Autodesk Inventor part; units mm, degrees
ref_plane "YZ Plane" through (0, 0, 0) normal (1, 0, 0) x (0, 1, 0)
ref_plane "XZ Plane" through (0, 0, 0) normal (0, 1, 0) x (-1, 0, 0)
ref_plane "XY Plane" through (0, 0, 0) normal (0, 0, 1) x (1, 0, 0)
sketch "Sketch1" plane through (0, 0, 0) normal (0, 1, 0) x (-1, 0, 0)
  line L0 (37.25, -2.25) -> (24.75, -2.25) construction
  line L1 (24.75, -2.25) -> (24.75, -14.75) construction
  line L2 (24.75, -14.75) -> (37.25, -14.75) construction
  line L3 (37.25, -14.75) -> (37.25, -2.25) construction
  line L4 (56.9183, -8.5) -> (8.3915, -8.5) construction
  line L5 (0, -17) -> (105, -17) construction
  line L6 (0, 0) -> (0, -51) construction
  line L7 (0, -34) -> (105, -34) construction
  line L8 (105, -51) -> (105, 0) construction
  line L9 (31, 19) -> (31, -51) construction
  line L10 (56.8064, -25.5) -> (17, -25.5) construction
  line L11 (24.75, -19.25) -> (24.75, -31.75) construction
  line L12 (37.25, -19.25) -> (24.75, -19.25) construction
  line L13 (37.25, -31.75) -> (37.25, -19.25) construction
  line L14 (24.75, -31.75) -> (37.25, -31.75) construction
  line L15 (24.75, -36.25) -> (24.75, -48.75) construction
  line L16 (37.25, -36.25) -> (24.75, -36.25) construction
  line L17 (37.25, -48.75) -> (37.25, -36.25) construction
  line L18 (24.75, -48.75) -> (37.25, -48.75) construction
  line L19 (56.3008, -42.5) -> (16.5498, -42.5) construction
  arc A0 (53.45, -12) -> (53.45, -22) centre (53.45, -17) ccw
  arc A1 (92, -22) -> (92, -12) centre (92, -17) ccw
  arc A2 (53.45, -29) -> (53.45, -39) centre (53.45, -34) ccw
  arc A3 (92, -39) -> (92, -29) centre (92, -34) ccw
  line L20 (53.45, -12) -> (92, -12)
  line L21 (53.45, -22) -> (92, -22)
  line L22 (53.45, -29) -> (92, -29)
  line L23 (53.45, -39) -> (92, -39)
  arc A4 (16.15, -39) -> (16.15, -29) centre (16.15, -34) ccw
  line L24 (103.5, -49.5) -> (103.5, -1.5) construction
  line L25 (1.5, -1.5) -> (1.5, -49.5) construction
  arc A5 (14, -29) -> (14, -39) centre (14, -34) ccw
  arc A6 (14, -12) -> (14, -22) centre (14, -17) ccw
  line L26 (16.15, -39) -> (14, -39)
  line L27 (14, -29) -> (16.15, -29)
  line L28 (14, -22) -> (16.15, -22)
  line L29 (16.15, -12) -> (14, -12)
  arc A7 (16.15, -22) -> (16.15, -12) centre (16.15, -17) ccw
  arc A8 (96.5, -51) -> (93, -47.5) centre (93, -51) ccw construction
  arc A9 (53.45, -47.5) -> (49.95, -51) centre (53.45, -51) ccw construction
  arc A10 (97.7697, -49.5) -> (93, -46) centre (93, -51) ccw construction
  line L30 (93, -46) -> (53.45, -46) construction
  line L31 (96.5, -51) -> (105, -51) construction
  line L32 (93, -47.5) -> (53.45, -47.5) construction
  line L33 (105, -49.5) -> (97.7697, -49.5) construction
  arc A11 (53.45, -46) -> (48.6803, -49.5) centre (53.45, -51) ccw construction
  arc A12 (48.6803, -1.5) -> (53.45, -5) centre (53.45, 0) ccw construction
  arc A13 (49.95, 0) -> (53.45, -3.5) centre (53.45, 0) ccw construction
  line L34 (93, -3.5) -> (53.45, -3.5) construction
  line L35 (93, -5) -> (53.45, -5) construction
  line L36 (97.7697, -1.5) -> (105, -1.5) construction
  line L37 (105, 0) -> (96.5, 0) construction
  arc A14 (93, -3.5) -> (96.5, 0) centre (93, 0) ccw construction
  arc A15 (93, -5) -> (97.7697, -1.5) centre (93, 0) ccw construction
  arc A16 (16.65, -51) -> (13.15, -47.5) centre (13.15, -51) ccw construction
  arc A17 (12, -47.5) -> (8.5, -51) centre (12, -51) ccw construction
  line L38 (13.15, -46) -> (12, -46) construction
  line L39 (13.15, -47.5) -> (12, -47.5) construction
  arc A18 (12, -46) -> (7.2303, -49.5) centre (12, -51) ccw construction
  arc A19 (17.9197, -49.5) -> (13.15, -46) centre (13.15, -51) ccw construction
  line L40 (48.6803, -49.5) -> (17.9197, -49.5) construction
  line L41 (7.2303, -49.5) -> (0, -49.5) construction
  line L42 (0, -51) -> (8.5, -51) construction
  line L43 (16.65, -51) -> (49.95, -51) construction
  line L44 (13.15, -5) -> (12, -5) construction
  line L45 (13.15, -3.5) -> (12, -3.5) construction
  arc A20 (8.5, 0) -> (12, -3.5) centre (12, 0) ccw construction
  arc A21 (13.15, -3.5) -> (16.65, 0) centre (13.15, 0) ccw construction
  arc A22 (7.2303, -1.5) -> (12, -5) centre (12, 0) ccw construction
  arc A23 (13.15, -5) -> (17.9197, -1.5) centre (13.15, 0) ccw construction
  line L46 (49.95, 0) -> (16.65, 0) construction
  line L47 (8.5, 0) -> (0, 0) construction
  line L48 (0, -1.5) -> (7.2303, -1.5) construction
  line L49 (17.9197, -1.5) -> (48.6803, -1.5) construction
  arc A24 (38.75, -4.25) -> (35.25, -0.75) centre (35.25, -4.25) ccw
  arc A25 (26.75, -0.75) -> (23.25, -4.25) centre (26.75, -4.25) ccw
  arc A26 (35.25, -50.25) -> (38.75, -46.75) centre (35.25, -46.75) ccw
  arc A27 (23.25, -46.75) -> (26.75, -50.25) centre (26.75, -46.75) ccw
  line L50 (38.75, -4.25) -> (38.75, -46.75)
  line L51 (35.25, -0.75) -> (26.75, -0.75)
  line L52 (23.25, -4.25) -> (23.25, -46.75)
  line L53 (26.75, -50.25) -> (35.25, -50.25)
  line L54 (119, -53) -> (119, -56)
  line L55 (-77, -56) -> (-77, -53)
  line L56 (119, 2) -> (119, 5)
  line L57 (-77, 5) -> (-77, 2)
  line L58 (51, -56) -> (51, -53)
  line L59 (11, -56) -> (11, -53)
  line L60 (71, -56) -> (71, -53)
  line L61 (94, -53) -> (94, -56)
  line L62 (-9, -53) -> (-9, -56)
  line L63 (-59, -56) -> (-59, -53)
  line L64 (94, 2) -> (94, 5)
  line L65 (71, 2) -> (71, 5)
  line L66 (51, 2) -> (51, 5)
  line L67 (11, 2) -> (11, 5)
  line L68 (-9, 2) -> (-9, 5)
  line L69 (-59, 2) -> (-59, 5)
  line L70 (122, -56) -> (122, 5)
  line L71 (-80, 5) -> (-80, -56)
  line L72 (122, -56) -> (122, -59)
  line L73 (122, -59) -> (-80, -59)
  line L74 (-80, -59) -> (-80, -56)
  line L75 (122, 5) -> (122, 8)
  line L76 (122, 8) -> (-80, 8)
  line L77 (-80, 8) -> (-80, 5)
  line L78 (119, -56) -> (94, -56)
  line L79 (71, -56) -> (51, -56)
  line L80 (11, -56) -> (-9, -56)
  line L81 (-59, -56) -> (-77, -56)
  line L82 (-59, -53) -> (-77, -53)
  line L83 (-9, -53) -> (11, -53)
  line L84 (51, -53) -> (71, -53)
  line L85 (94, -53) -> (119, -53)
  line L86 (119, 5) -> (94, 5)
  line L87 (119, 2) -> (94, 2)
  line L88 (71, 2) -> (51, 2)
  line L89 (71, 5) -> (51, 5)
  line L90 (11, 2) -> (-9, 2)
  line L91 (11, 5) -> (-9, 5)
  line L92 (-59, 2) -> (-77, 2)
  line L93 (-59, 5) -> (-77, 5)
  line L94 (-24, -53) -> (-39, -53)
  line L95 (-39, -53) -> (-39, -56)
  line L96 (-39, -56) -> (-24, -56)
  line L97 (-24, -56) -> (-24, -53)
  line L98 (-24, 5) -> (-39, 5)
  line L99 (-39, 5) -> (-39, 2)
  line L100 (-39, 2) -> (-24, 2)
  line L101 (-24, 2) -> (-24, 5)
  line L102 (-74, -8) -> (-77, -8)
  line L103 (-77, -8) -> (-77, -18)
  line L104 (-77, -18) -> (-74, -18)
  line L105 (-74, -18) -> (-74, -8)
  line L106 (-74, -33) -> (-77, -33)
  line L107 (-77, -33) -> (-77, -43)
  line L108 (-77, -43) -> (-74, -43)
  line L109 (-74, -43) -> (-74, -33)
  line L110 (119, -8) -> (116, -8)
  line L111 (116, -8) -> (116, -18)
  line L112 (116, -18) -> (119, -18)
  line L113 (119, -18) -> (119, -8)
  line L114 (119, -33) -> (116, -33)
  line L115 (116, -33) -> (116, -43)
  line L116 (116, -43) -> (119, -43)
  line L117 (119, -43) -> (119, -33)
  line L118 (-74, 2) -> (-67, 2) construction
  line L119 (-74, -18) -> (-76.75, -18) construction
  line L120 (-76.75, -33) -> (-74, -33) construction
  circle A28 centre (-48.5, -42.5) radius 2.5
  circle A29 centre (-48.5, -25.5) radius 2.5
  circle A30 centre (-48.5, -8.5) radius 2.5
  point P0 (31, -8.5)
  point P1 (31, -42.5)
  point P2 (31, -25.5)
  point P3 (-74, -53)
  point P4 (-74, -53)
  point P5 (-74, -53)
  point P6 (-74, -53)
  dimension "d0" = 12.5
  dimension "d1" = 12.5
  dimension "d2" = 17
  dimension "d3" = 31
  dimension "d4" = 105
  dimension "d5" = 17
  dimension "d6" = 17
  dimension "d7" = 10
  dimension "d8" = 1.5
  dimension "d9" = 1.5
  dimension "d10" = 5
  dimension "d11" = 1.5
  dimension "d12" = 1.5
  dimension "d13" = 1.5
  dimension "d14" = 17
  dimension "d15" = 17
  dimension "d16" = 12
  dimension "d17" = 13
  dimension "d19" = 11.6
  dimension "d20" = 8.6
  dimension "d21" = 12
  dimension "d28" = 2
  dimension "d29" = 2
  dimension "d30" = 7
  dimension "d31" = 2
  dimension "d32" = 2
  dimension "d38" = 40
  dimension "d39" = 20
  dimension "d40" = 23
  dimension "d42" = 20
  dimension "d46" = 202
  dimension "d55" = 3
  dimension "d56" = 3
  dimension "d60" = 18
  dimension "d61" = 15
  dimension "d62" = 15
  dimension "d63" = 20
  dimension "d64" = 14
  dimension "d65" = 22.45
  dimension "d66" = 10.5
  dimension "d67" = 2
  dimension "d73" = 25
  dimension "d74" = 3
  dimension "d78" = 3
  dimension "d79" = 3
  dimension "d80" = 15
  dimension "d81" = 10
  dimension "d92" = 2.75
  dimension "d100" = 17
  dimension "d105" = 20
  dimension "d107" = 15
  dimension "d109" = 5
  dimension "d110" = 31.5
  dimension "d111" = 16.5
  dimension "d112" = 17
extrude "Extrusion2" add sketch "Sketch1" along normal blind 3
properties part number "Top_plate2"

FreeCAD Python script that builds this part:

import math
import FreeCAD as App
import Part
import Sketcher


def add_polygon(sketch, points):
    """Adds a closed chain of lines whose ends are joined by coincident constraints."""
    first, n = sketch.GeometryCount, len(points)
    for a, b in zip(points, points[1:] + points[:1]):
        sketch.addGeometry(Part.LineSegment(App.Vector(*a, 0), App.Vector(*b, 0)), False)
    for i in range(n):
        sketch.addConstraint(Sketcher.Constraint("Coincident", first + i, 2, first + (i + 1) % n, 1))

doc = App.newDocument("Part")
body = doc.addObject("PartDesign::Body", "Body")

sketch1 = doc.addObject("Sketcher::SketchObject", "Sketch")
body.addObject(sketch1)
sketch1.AttachmentSupport = (doc.XZ_Plane, [""])
sketch1.MapMode = "FlatFace"
add_polygon(sketch1, [(-122, -59), (-122, 8), (80, 8), (80, -59)])
add_polygon(sketch1, [(59, -56), (77, -56), (77, -53), (59, -53)])
add_polygon(sketch1, [(39, -53), (24, -53), (24, -56), (39, -56)])
sketch1.addGeometry(Part.Circle(App.Vector(48.5, -42.5, 0), App.Vector(0, 0, 1), 2.5), False)
add_polygon(sketch1, [(-11, -53), (-11, -56), (9, -56), (9, -53)])
add_polygon(sketch1, [(77, -33), (74, -33), (74, -43), (77, -43)])
sketch1.addGeometry(Part.ArcOfCircle(Part.Circle(App.Vector(-16.1, -34, 0), App.Vector(0, 0, 1), 5), math.radians(90), math.radians(270)), False)
sketch1.addGeometry(Part.LineSegment(App.Vector(-16.1, -39, 0), App.Vector(-14, -39, 0)), False)
sketch1.addGeometry(Part.ArcOfCircle(Part.Circle(App.Vector(-14, -34, 0), App.Vector(0, 0, 1), 5), math.radians(-90), math.radians(90)), False)
sketch1.addGeometry(Part.LineSegment(App.Vector(-14, -29, 0), App.Vector(-16.1, -29, 0)), False)
add_polygon(sketch1, [(-71, -56), (-51, -56), (-51, -53), (-71, -53)])
add_polygon(sketch1, [(-94, -53), (-119, -53), (-119, -56), (-94, -56)])
sketch1.addGeometry(Part.ArcOfCircle(Part.Circle(App.Vector(-53.5, -34, 0), App.Vector(0, 0, 1), 5), math.radians(-90), math.radians(90)), False)
sketch1.addGeometry(Part.LineSegment(App.Vector(-53.5, -29, 0), App.Vector(-92, -29, 0)), False)
sketch1.addGeometry(Part.ArcOfCircle(Part.Circle(App.Vector(-92, -34, 0), App.Vector(0, 0, 1), 5), math.radians(90), math.radians(270)), False)
sketch1.addGeometry(Part.LineSegment(App.Vector(-92, -39, 0), App.Vector(-53.5, -39, 0)), False)
add_polygon(sketch1, [(-116, -33), (-119, -33), (-119, -43), (-116, -43)])
sketch1.addGeometry(Part.Circle(App.Vector(48.5, -25.5, 0), App.Vector(0, 0, 1), 2.5), False)
add_polygon(sketch1, [(77, -8), (74, -8), (74, -18), (77, -18)])
sketch1.addGeometry(Part.ArcOfCircle(Part.Circle(App.Vector(-14, -17, 0), App.Vector(0, 0, 1), 5), math.radians(-90), math.radians(90)), False)
sketch1.addGeometry(Part.LineSegment(App.Vector(-14, -12, 0), App.Vector(-16.1, -12, 0)), False)
sketch1.addGeometry(Part.ArcOfCircle(Part.Circle(App.Vector(-16.1, -17, 0), App.Vector(0, 0, 1), 5), math.radians(90), math.radians(270)), False)
sketch1.addGeometry(Part.LineSegment(App.Vector(-16.1, -22, 0), App.Vector(-14, -22, 0)), False)
sketch1.addGeometry(Part.Circle(App.Vector(48.5, -8.5, 0), App.Vector(0, 0, 1), 2.5), False)
add_polygon(sketch1, [(77, 2), (77, 5), (59, 5), (59, 2)])
add_polygon(sketch1, [(39, 5), (24, 5), (24, 2), (39, 2)])
add_polygon(sketch1, [(-11, 5), (-11, 2), (9, 2), (9, 5)])
sketch1.addGeometry(Part.ArcOfCircle(Part.Circle(App.Vector(-35.2, -4.2, 0), App.Vector(0, 0, 1), 3.5), math.radians(90), math.radians(180)), False)
sketch1.addGeometry(Part.LineSegment(App.Vector(-38.8, -4.2, 0), App.Vector(-38.8, -46.8, 0)), False)
sketch1.addGeometry(Part.ArcOfCircle(Part.Circle(App.Vector(-35.2, -46.8, 0), App.Vector(0, 0, 1), 3.5), math.radians(180), math.radians(270)), False)
sketch1.addGeometry(Part.LineSegment(App.Vector(-35.2, -50.2, 0), App.Vector(-26.8, -50.2, 0)), False)
sketch1.addGeometry(Part.ArcOfCircle(Part.Circle(App.Vector(-26.8, -46.8, 0), App.Vector(0, 0, 1), 3.5), math.radians(-90), math.radians(0)), False)
sketch1.addGeometry(Part.LineSegment(App.Vector(-23.2, -46.8, 0), App.Vector(-23.2, -4.2, 0)), False)
sketch1.addGeometry(Part.ArcOfCircle(Part.Circle(App.Vector(-26.8, -4.2, 0), App.Vector(0, 0, 1), 3.5), math.radians(0), math.radians(90)), False)
sketch1.addGeometry(Part.LineSegment(App.Vector(-26.8, -0.8, 0), App.Vector(-35.2, -0.8, 0)), False)
sketch1.addGeometry(Part.ArcOfCircle(Part.Circle(App.Vector(-53.5, -17, 0), App.Vector(0, 0, 1), 5), math.radians(-90), math.radians(90)), False)
sketch1.addGeometry(Part.LineSegment(App.Vector(-53.5, -12, 0), App.Vector(-92, -12, 0)), False)
sketch1.addGeometry(Part.ArcOfCircle(Part.Circle(App.Vector(-92, -17, 0), App.Vector(0, 0, 1), 5), math.radians(90), math.radians(270)), False)
sketch1.addGeometry(Part.LineSegment(App.Vector(-92, -22, 0), App.Vector(-53.5, -22, 0)), False)
add_polygon(sketch1, [(-116, -8), (-119, -8), (-119, -18), (-116, -18)])
add_polygon(sketch1, [(-71, 5), (-71, 2), (-51, 2), (-51, 5)])
add_polygon(sketch1, [(-119, 5), (-119, 2), (-94, 2), (-94, 5)])
sketch1.addConstraint([
    Sketcher.Constraint("Tangent", 21, 2, 22, 1),
    Sketcher.Constraint("Tangent", 22, 2, 23, 1),
    Sketcher.Constraint("Tangent", 23, 2, 24, 1),
    Sketcher.Constraint("Tangent", 24, 2, 21, 1),
    Sketcher.Constraint("Tangent", 33, 2, 34, 1),
    Sketcher.Constraint("Tangent", 34, 2, 35, 1),
    Sketcher.Constraint("Tangent", 35, 2, 36, 1),
    Sketcher.Constraint("Tangent", 36, 2, 33, 1),
    Sketcher.Constraint("Tangent", 46, 2, 47, 1),
    Sketcher.Constraint("Tangent", 47, 2, 48, 1),
    Sketcher.Constraint("Tangent", 48, 2, 49, 1),
    Sketcher.Constraint("Tangent", 49, 2, 46, 1),
    Sketcher.Constraint("Tangent", 63, 2, 64, 1),
    Sketcher.Constraint("Tangent", 64, 2, 65, 1),
    Sketcher.Constraint("Tangent", 65, 2, 66, 1),
    Sketcher.Constraint("Tangent", 66, 2, 67, 1),
    Sketcher.Constraint("Tangent", 67, 2, 68, 1),
    Sketcher.Constraint("Tangent", 68, 2, 69, 1),
    Sketcher.Constraint("Tangent", 69, 2, 70, 1),
    Sketcher.Constraint("Tangent", 70, 2, 63, 1),
    Sketcher.Constraint("Tangent", 71, 2, 72, 1),
    Sketcher.Constraint("Tangent", 72, 2, 73, 1),
    Sketcher.Constraint("Tangent", 73, 2, 74, 1),
    Sketcher.Constraint("Tangent", 74, 2, 71, 1),
    Sketcher.Constraint("Vertical", 0),
    Sketcher.Constraint("Horizontal", 1),
    Sketcher.Constraint("Vertical", 2),
    Sketcher.Constraint("Horizontal", 3),
    Sketcher.Constraint("Horizontal", 4),
    Sketcher.Constraint("Vertical", 5),
    Sketcher.Constraint("Horizontal", 6),
    Sketcher.Constraint("Vertical", 7),
    Sketcher.Constraint("Horizontal", 8),
    Sketcher.Constraint("Vertical", 9),
    Sketcher.Constraint("Horizontal", 10),
    Sketcher.Constraint("Vertical", 11),
    Sketcher.Constraint("Vertical", 13),
    Sketcher.Constraint("Horizontal", 14),
    Sketcher.Constraint("Vertical", 15),
    Sketcher.Constraint("Horizontal", 16),
    Sketcher.Constraint("Horizontal", 17),
    Sketcher.Constraint("Vertical", 18),
    Sketcher.Constraint("Horizontal", 19),
    Sketcher.Constraint("Vertical", 20),
    Sketcher.Constraint("Horizontal", 22),
    Sketcher.Constraint("Horizontal", 24),
    Sketcher.Constraint("Horizontal", 25),
    Sketcher.Constraint("Vertical", 26),
    Sketcher.Constraint("Horizontal", 27),
    Sketcher.Constraint("Vertical", 28),
    Sketcher.Constraint("Horizontal", 29),
    Sketcher.Constraint("Vertical", 30),
    Sketcher.Constraint("Horizontal", 31),
    Sketcher.Constraint("Vertical", 32),
    Sketcher.Constraint("Horizontal", 34),
    Sketcher.Constraint("Horizontal", 36),
    Sketcher.Constraint("Horizontal", 37),
    Sketcher.Constraint("Vertical", 38),
    Sketcher.Constraint("Horizontal", 39),
    Sketcher.Constraint("Vertical", 40),
    Sketcher.Constraint("Horizontal", 42),
    Sketcher.Constraint("Vertical", 43),
    Sketcher.Constraint("Horizontal", 44),
    Sketcher.Constraint("Vertical", 45),
    Sketcher.Constraint("Horizontal", 47),
    Sketcher.Constraint("Horizontal", 49),
    Sketcher.Constraint("Vertical", 51),
    Sketcher.Constraint("Horizontal", 52),
    Sketcher.Constraint("Vertical", 53),
    Sketcher.Constraint("Horizontal", 54),
    Sketcher.Constraint("Horizontal", 55),
    Sketcher.Constraint("Vertical", 56),
    Sketcher.Constraint("Horizontal", 57),
    Sketcher.Constraint("Vertical", 58),
    Sketcher.Constraint("Vertical", 59),
    Sketcher.Constraint("Horizontal", 60),
    Sketcher.Constraint("Vertical", 61),
    Sketcher.Constraint("Horizontal", 62),
    Sketcher.Constraint("Vertical", 64),
    Sketcher.Constraint("Horizontal", 66),
    Sketcher.Constraint("Vertical", 68),
    Sketcher.Constraint("Horizontal", 70),
    Sketcher.Constraint("Horizontal", 72),
    Sketcher.Constraint("Horizontal", 74),
    Sketcher.Constraint("Horizontal", 75),
    Sketcher.Constraint("Vertical", 76),
    Sketcher.Constraint("Horizontal", 77),
    Sketcher.Constraint("Vertical", 78),
    Sketcher.Constraint("Vertical", 79),
    Sketcher.Constraint("Horizontal", 80),
    Sketcher.Constraint("Vertical", 81),
    Sketcher.Constraint("Horizontal", 82),
    Sketcher.Constraint("Vertical", 83),
    Sketcher.Constraint("Horizontal", 84),
    Sketcher.Constraint("Vertical", 85),
    Sketcher.Constraint("Horizontal", 86),
    Sketcher.Constraint("Equal", 23, 33),
    Sketcher.Constraint("Equal", 12, 41),
    Sketcher.Constraint("Equal", 35, 46),
    Sketcher.Constraint("Equal", 41, 50),
    Sketcher.Constraint("Equal", 63, 65),
    Sketcher.Constraint("Equal", 65, 67),
    Sketcher.Constraint("Equal", 67, 69),
    Sketcher.Constraint("Equal", 48, 71),
    Sketcher.Constraint("Horizontal", 23, 3, 33, 3),
    Sketcher.Constraint("Horizontal", 48, 3, 71, 3),
    Sketcher.Constraint("Horizontal", 6, 2, 8, 2),
    Sketcher.Constraint("Horizontal", 7, 2, 9, 2),
    Sketcher.Constraint("Horizontal", 10, 2, 13, 2),
    Sketcher.Constraint("Horizontal", 11, 2, 15, 2),
    Sketcher.Constraint("Horizontal", 14, 2, 25, 2),
    Sketcher.Constraint("Horizontal", 16, 2, 26, 2),
    Sketcher.Constraint("Horizontal", 27, 2, 29, 2),
    Sketcher.Constraint("Horizontal", 28, 2, 30, 2),
    Sketcher.Constraint("Horizontal", 20, 2, 37, 2),
    Sketcher.Constraint("Horizontal", 19, 2, 38, 2),
    Sketcher.Constraint("Horizontal", 52, 2, 55, 2),
    Sketcher.Constraint("Horizontal", 54, 2, 56, 2),
    Sketcher.Constraint("Horizontal", 57, 2, 59, 2),
    Sketcher.Constraint("Horizontal", 58, 2, 61, 2),
    Sketcher.Constraint("Horizontal", 45, 2, 75, 2),
    Sketcher.Constraint("Horizontal", 44, 2, 76, 2),
    Sketcher.Constraint("Horizontal", 60, 2, 79, 2),
    Sketcher.Constraint("Horizontal", 62, 2, 81, 2),
    Sketcher.Constraint("Horizontal", 80, 2, 83, 2),
    Sketcher.Constraint("Horizontal", 82, 2, 85, 2),
    Sketcher.Constraint("Vertical", 12, 3, 41, 3),
    Sketcher.Constraint("Vertical", 23, 3, 46, 3),
    Sketcher.Constraint("Vertical", 21, 3, 48, 3),
    Sketcher.Constraint("Vertical", 41, 3, 50, 3),
    Sketcher.Constraint("Vertical", 33, 3, 71, 3),
    Sketcher.Constraint("Vertical", 35, 3, 73, 3),
    Sketcher.Constraint("Vertical", 5, 2, 19, 2),
    Sketcher.Constraint("Vertical", 30, 2, 37, 2),
    Sketcher.Constraint("Vertical", 18, 2, 42, 2),
    Sketcher.Constraint("Vertical", 20, 2, 44, 2),
    Sketcher.Constraint("Vertical", 45, 2, 51, 2),
    Sketcher.Constraint("Vertical", 7, 2, 52, 2),
    Sketcher.Constraint("Vertical", 9, 2, 55, 2),
    Sketcher.Constraint("Vertical", 11, 2, 57, 2),
    Sketcher.Constraint("Vertical", 16, 2, 59, 2),
    Sketcher.Constraint("Vertical", 15, 2, 60, 2),
    Sketcher.Constraint("Vertical", 38, 2, 75, 2),
    Sketcher.Constraint("Vertical", 40, 2, 77, 2),
    Sketcher.Constraint("Vertical", 28, 2, 79, 2),
    Sketcher.Constraint("Vertical", 26, 2, 80, 2),
    Sketcher.Constraint("Vertical", 76, 2, 83, 2),
    Sketcher.Constraint("Vertical", 32, 2, 84, 2),
    Sketcher.Constraint("Equal", 16, 25),
    Sketcher.Constraint("Equal", 19, 37),
    Sketcher.Constraint("Equal", 77, 5),
    Sketcher.Constraint("Equal", 40, 43),
    Sketcher.Constraint("Equal", 32, 51),
    Sketcher.Constraint("Diameter", 12, 5.0),
    Sketcher.Constraint("Radius", 21, 5.0),
    Sketcher.Constraint("Radius", 63, 3.5),
    Sketcher.Constraint("DistanceX", 1, 1, 1, 2, 202.0),
    Sketcher.Constraint("DistanceX", 4, 1, 4, 2, 18.0),
    Sketcher.Constraint("DistanceX", 8, 2, 8, 1, 15.0),
    Sketcher.Constraint("DistanceX", 14, 1, 14, 2, 20.0),
    Sketcher.Constraint("DistanceX", 17, 2, 17, 1, 3.0),
    Sketcher.Constraint("DistanceX", 29, 2, 29, 1, 25.0),
    Sketcher.Constraint("DistanceY", 18, 2, 18, 1, 10.0),
    Sketcher.Constraint("DistanceX", 23, 3, -1, 1, 14.0),
    Sketcher.Constraint("DistanceY", 46, 3, -1, 1, 17.0),
    Sketcher.Constraint("DistanceY", 43, 2, -1, 1, 18.0),
    Sketcher.Constraint("DistanceY", -1, 1, 51, 2, 5.0),
    Sketcher.Constraint("DistanceY", 0, 1, 0, 2, 67.0),
    Sketcher.Constraint("DistanceX", 66, 1, 66, 2, 8.5),
    Sketcher.Constraint("DistanceY", 64, 2, 64, 1, 42.5),
    Sketcher.Constraint("DistanceY", 21, 3, -1, 1, 34.0),
    Sketcher.Constraint("DistanceX", 35, 3, -1, 1, 92.0),
    Sketcher.Constraint("DistanceX", 0, 2, -1, 1, 122.0),
    Sketcher.Constraint("DistanceY", -1, 1, 0, 2, 8.0),
    Sketcher.Constraint("DistanceX", -1, 1, 4, 2, 77.0),
    Sketcher.Constraint("DistanceY", 4, 2, -1, 1, 56.0),
    Sketcher.Constraint("DistanceX", -1, 1, 8, 2, 24.0),
    Sketcher.Constraint("DistanceX", 13, 2, -1, 1, 11.0),
    Sketcher.Constraint("DistanceY", 17, 2, -1, 1, 33.0),
    Sketcher.Constraint("DistanceX", 25, 2, -1, 1, 51.0),
    Sketcher.Constraint("DistanceX", 29, 2, -1, 1, 119.0),
    Sketcher.Constraint("DistanceX", 22, 1, 22, 2, 2.15),
    Sketcher.Constraint("DistanceX", 34, 2, 34, 1, 38.55),
    Sketcher.Constraint("DistanceX", -1, 1, 12, 3, 48.5),
    Sketcher.Constraint("DistanceY", 12, 3, -1, 1, 42.5),
    Sketcher.Constraint("DistanceY", 41, 3, -1, 1, 25.5),
    Sketcher.Constraint("DistanceY", 50, 3, -1, 1, 8.5),
    Sketcher.Constraint("DistanceX", 63, 3, -1, 1, 35.25),
    Sketcher.Constraint("DistanceY", 63, 3, -1, 1, 4.25),
])
pad1 = doc.addObject("PartDesign::Pad", "Pad")
body.addObject(pad1)
pad1.Profile = sketch1
pad1.Length = 3
pad1.Reversed = True

doc.recompute()
